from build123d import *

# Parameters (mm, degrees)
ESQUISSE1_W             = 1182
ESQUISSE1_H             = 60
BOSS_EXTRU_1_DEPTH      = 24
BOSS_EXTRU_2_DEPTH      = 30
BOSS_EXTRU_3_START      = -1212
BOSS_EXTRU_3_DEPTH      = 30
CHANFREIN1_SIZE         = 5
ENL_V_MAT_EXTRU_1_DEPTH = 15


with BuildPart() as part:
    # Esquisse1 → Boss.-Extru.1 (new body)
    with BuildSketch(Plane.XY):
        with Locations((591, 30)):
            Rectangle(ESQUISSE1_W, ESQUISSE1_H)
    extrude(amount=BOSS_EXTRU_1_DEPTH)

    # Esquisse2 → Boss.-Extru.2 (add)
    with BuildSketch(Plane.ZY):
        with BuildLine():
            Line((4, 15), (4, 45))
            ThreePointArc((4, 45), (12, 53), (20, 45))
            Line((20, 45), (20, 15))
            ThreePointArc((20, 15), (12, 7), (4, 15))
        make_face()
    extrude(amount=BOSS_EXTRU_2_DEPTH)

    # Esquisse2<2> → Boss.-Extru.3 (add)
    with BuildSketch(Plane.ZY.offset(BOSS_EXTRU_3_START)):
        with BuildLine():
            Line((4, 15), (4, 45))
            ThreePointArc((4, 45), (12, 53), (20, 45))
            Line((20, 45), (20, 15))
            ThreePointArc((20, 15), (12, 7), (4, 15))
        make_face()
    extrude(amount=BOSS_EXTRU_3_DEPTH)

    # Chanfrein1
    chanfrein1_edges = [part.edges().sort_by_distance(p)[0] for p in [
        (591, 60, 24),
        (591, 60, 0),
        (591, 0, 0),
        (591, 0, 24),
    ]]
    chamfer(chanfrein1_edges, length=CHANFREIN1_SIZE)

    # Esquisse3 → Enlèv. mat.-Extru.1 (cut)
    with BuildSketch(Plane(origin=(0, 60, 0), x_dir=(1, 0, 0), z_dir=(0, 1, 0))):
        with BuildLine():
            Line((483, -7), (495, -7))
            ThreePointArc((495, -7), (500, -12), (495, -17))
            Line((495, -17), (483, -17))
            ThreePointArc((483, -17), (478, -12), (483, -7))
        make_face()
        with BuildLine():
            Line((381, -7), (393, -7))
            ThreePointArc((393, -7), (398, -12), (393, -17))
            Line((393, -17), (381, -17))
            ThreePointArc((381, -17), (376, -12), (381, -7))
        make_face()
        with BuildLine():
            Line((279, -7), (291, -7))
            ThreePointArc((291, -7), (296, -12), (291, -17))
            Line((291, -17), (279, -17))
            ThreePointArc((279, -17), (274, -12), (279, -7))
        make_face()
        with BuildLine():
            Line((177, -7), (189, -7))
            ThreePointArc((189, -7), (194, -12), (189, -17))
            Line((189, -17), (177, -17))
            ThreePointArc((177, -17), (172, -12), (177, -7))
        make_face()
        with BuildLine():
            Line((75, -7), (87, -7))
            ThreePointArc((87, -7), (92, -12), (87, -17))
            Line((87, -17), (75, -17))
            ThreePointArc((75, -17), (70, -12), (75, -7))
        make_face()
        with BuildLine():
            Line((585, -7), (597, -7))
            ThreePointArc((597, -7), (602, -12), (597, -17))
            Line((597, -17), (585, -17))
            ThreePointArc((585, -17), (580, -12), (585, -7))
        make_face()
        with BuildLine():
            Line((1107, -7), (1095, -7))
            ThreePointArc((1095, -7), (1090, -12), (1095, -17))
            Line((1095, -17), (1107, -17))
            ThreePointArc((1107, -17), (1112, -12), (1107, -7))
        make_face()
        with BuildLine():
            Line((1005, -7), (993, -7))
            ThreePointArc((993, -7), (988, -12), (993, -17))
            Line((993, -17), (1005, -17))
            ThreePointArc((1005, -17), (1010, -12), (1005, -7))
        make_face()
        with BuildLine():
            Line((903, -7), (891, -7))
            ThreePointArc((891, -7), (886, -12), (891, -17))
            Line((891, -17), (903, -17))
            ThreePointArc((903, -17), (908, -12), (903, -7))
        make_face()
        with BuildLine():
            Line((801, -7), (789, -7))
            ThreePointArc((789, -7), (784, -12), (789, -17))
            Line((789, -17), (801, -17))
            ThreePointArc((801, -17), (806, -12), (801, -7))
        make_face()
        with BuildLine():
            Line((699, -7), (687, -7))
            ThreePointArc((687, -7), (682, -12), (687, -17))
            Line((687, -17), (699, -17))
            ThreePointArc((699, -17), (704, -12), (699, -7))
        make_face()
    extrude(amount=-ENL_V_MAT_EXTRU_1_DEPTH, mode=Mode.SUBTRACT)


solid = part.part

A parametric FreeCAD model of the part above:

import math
import FreeCAD as App
import Part
import Sketcher


def edges_at(feature, points):
    """Names of the edges that pass closest to the given points."""
    edges = feature.Shape.Edges
    near = lambda p: min(range(len(edges)), key=lambda i: edges[i].distToShape(Part.Vertex(*p))[0])
    return sorted({f"Edge{near(p) + 1}" for p in points})

doc = App.newDocument("Part")
body = doc.addObject("PartDesign::Body", "Body")

sketch1 = body.newObject("Sketcher::SketchObject", "Sketch")
sketch1.AttachmentSupport = (doc.getObject("XY_Plane"), [""])
sketch1.MapMode = "FlatFace"
sketch1.addGeometry(Part.LineSegment(App.Vector(0, 60, 0), App.Vector(0, 0, 0)), False)
sketch1.addGeometry(Part.LineSegment(App.Vector(0, 0, 0), App.Vector(1182, 0, 0)), False)
sketch1.addGeometry(Part.LineSegment(App.Vector(1182, 0, 0), App.Vector(1182, 60, 0)), False)
sketch1.addGeometry(Part.LineSegment(App.Vector(1182, 60, 0), App.Vector(0, 60, 0)), False)
sketch1.addConstraint(Sketcher.Constraint("Coincident", 0, 2, 1, 1))
sketch1.addConstraint(Sketcher.Constraint("Coincident", 1, 2, 2, 1))
sketch1.addConstraint(Sketcher.Constraint("Coincident", 2, 2, 3, 1))
sketch1.addConstraint(Sketcher.Constraint("Coincident", 3, 2, 0, 1))
sketch1.addConstraint(Sketcher.Constraint("Vertical", 0))
sketch1.addConstraint(Sketcher.Constraint("Horizontal", 1))
sketch1.addConstraint(Sketcher.Constraint("Vertical", 2))
sketch1.addConstraint(Sketcher.Constraint("Horizontal", 3))
sketch1.addConstraint(Sketcher.Constraint("Coincident", 0, 2, -1, 1))
sketch1.addConstraint(Sketcher.Constraint("DistanceX", 1, 1, 1, 2, 1182.0))
sketch1.addConstraint(Sketcher.Constraint("DistanceY", 0, 2, 0, 1, 60.0))
pad1 = body.newObject("PartDesign::Pad", "Pad")
pad1.Profile = sketch1
pad1.Length = 24

sketch2 = body.newObject("Sketcher::SketchObject", "Sketch001")
sketch2.AttachmentSupport = (doc.getObject("YZ_Plane"), [""])
sketch2.MapMode = "FlatFace"
sketch2.addGeometry(Part.LineSegment(App.Vector(45, 4, 0), App.Vector(15, 4, 0)), False)
sketch2.addGeometry(Part.ArcOfCircle(Part.Circle(App.Vector(15, 12, 0), App.Vector(0, 0, 1), 8), math.radians(90), math.radians(270)), False)
sketch2.addGeometry(Part.LineSegment(App.Vector(15, 20, 0), App.Vector(45, 20, 0)), False)
sketch2.addGeometry(Part.ArcOfCircle(Part.Circle(App.Vector(45, 12, 0), App.Vector(0, 0, 1), 8), math.radians(-90), math.radians(90)), False)
sketch2.addConstraint(Sketcher.Constraint("Tangent", 0, 2, 1, 2))
sketch2.addConstraint(Sketcher.Constraint("Tangent", 1, 1, 2, 1))
sketch2.addConstraint(Sketcher.Constraint("Tangent", 2, 2, 3, 2))
sketch2.addConstraint(Sketcher.Constraint("Tangent", 3, 1, 0, 1))
sketch2.addConstraint(Sketcher.Constraint("Horizontal", 0))
sketch2.addConstraint(Sketcher.Constraint("Horizontal", 2))
sketch2.addConstraint(Sketcher.Constraint("Radius", 1, 8.0))
sketch2.addConstraint(Sketcher.Constraint("DistanceX", 0, 2, 0, 1, 30.0))
sketch2.addConstraint(Sketcher.Constraint("DistanceX", -1, 1, 1, 3, 15.0))
sketch2.addConstraint(Sketcher.Constraint("DistanceY", -1, 1, 1, 3, 12.0))
pad2 = body.newObject("PartDesign::Pad", "Pad001")
pad2.Profile = sketch2
pad2.Length = 30
pad2.Reversed = True

sketch3 = body.newObject("Sketcher::SketchObject", "Sketch002")
sketch3.AttachmentSupport = (doc.getObject("YZ_Plane"), [""])
sketch3.MapMode = "FlatFace"
sketch3.AttachmentOffset = App.Placement(App.Vector(0, 0, 1212), App.Rotation())
sketch3.addGeometry(Part.LineSegment(App.Vector(45, 4, 0), App.Vector(15, 4, 0)), False)
sketch3.addGeometry(Part.ArcOfCircle(Part.Circle(App.Vector(15, 12, 0), App.Vector(0, 0, 1), 8), math.radians(90), math.radians(270)), False)
sketch3.addGeometry(Part.LineSegment(App.Vector(15, 20, 0), App.Vector(45, 20, 0)), False)
sketch3.addGeometry(Part.ArcOfCircle(Part.Circle(App.Vector(45, 12, 0), App.Vector(0, 0, 1), 8), math.radians(-90), math.radians(90)), False)
sketch3.addConstraint(Sketcher.Constraint("Tangent", 0, 2, 1, 2))
sketch3.addConstraint(Sketcher.Constraint("Tangent", 1, 1, 2, 1))
sketch3.addConstraint(Sketcher.Constraint("Tangent", 2, 2, 3, 2))
sketch3.addConstraint(Sketcher.Constraint("Tangent", 3, 1, 0, 1))
sketch3.addConstraint(Sketcher.Constraint("Horizontal", 0))
sketch3.addConstraint(Sketcher.Constraint("Horizontal", 2))
sketch3.addConstraint(Sketcher.Constraint("Radius", 1, 8.0))
sketch3.addConstraint(Sketcher.Constraint("DistanceX", 0, 2, 0, 1, 30.0))
sketch3.addConstraint(Sketcher.Constraint("DistanceX", -1, 1, 1, 3, 15.0))
sketch3.addConstraint(Sketcher.Constraint("DistanceY", -1, 1, 1, 3, 12.0))
pad3 = body.newObject("PartDesign::Pad", "Pad002")
pad3.Profile = sketch3
pad3.Length = 30
pad3.Reversed = True
doc.recompute()

chamfer = body.newObject("PartDesign::Chamfer", "Chamfer")
chamfer.Base = (pad3, edges_at(pad3, [
    (591, 60, 24),
    (591, 60, 0),
    (591, 0, 0),
    (591, 0, 24),
]))
chamfer.Size = 5

sketch4 = body.newObject("Sketcher::SketchObject", "Sketch003")
sketch4.AttachmentSupport = (doc.getObject("XZ_Plane"), [""])
sketch4.MapMode = "FlatFace"
sketch4.AttachmentOffset = App.Placement(App.Vector(0, 0, -60), App.Rotation())
sketch4.addGeometry(Part.LineSegment(App.Vector(495, 7, 0), App.Vector(483, 7, 0)), False)
sketch4.addGeometry(Part.ArcOfCircle(Part.Circle(App.Vector(483, 12, 0), App.Vector(0, 0, 1), 5), math.radians(90), math.radians(270)), False)
sketch4.addGeometry(Part.LineSegment(App.Vector(483, 17, 0), App.Vector(495, 17, 0)), False)
sketch4.addGeometry(Part.ArcOfCircle(Part.Circle(App.Vector(495, 12, 0), App.Vector(0, 0, 1), 5), math.radians(-90), math.radians(90)), False)
sketch4.addGeometry(Part.LineSegment(App.Vector(393, 7, 0), App.Vector(381, 7, 0)), False)
sketch4.addGeometry(Part.ArcOfCircle(Part.Circle(App.Vector(381, 12, 0), App.Vector(0, 0, 1), 5), math.radians(90), math.radians(270)), False)
sketch4.addGeometry(Part.LineSegment(App.Vector(381, 17, 0), App.Vector(393, 17, 0)), False)
sketch4.addGeometry(Part.ArcOfCircle(Part.Circle(App.Vector(393, 12, 0), App.Vector(0, 0, 1), 5), math.radians(-90), math.radians(90)), False)
sketch4.addGeometry(Part.LineSegment(App.Vector(291, 7, 0), App.Vector(279, 7, 0)), False)
sketch4.addGeometry(Part.ArcOfCircle(Part.Circle(App.Vector(279, 12, 0), App.Vector(0, 0, 1), 5), math.radians(90), math.radians(270)), False)
sketch4.addGeometry(Part.LineSegment(App.Vector(279, 17, 0), App.Vector(291, 17, 0)), False)
sketch4.addGeometry(Part.ArcOfCircle(Part.Circle(App.Vector(291, 12, 0), App.Vector(0, 0, 1), 5), math.radians(-90), math.radians(90)), False)
sketch4.addGeometry(Part.LineSegment(App.Vector(189, 7, 0), App.Vector(177, 7, 0)), False)
sketch4.addGeometry(Part.ArcOfCircle(Part.Circle(App.Vector(177, 12, 0), App.Vector(0, 0, 1), 5), math.radians(90), math.radians(270)), False)
sketch4.addGeometry(Part.LineSegment(App.Vector(177, 17, 0), App.Vector(189, 17, 0)), False)
sketch4.addGeometry(Part.ArcOfCircle(Part.Circle(App.Vector(189, 12, 0), App.Vector(0, 0, 1), 5), math.radians(-90), math.radians(90)), False)
sketch4.addGeometry(Part.LineSegment(App.Vector(87, 7, 0), App.Vector(75, 7, 0)), False)
sketch4.addGeometry(Part.ArcOfCircle(Part.Circle(App.Vector(75, 12, 0), App.Vector(0, 0, 1), 5), math.radians(90), math.radians(270)), False)
sketch4.addGeometry(Part.LineSegment(App.Vector(75, 17, 0), App.Vector(87, 17, 0)), False)
sketch4.addGeometry(Part.ArcOfCircle(Part.Circle(App.Vector(87, 12, 0), App.Vector(0, 0, 1), 5), math.radians(-90), math.radians(90)), False)
sketch4.addGeometry(Part.LineSegment(App.Vector(597, 7, 0), App.Vector(585, 7, 0)), False)
sketch4.addGeometry(Part.ArcOfCircle(Part.Circle(App.Vector(585, 12, 0), App.Vector(0, 0, 1), 5), math.radians(90), math.radians(270)), False)
sketch4.addGeometry(Part.LineSegment(App.Vector(585, 17, 0), App.Vector(597, 17, 0)), False)
sketch4.addGeometry(Part.ArcOfCircle(Part.Circle(App.Vector(597, 12, 0), App.Vector(0, 0, 1), 5), math.radians(-90), math.radians(90)), False)
sketch4.addGeometry(Part.LineSegment(App.Vector(1107, 7, 0), App.Vector(1095, 7, 0)), False)
sketch4.addGeometry(Part.ArcOfCircle(Part.Circle(App.Vector(1095, 12, 0), App.Vector(0, 0, 1), 5), math.radians(90), math.radians(270)), False)
sketch4.addGeometry(Part.LineSegment(App.Vector(1095, 17, 0), App.Vector(1107, 17, 0)), False)
sketch4.addGeometry(Part.ArcOfCircle(Part.Circle(App.Vector(1107, 12, 0), App.Vector(0, 0, 1), 5), math.radians(-90), math.radians(90)), False)
sketch4.addGeometry(Part.LineSegment(App.Vector(1005, 7, 0), App.Vector(993, 7, 0)), False)
sketch4.addGeometry(Part.ArcOfCircle(Part.Circle(App.Vector(993, 12, 0), App.Vector(0, 0, 1), 5), math.radians(90), math.radians(270)), False)
sketch4.addGeometry(Part.LineSegment(App.Vector(993, 17, 0), App.Vector(1005, 17, 0)), False)
sketch4.addGeometry(Part.ArcOfCircle(Part.Circle(App.Vector(1005, 12, 0), App.Vector(0, 0, 1), 5), math.radians(-90), math.radians(90)), False)
sketch4.addGeometry(Part.LineSegment(App.Vector(903, 7, 0), App.Vector(891, 7, 0)), False)
sketch4.addGeometry(Part.ArcOfCircle(Part.Circle(App.Vector(891, 12, 0), App.Vector(0, 0, 1), 5), math.radians(90), math.radians(270)), False)
sketch4.addGeometry(Part.LineSegment(App.Vector(891, 17, 0), App.Vector(903, 17, 0)), False)
sketch4.addGeometry(Part.ArcOfCircle(Part.Circle(App.Vector(903, 12, 0), App.Vector(0, 0, 1), 5), math.radians(-90), math.radians(90)), False)
sketch4.addGeometry(Part.LineSegment(App.Vector(801, 7, 0), App.Vector(789, 7, 0)), False)
sketch4.addGeometry(Part.ArcOfCircle(Part.Circle(App.Vector(789, 12, 0), App.Vector(0, 0, 1), 5), math.radians(90), math.radians(270)), False)
sketch4.addGeometry(Part.LineSegment(App.Vector(789, 17, 0), App.Vector(801, 17, 0)), False)
sketch4.addGeometry(Part.ArcOfCircle(Part.Circle(App.Vector(801, 12, 0), App.Vector(0, 0, 1), 5), math.radians(-90), math.radians(90)), False)
sketch4.addGeometry(Part.LineSegment(App.Vector(699, 7, 0), App.Vector(687, 7, 0)), False)
sketch4.addGeometry(Part.ArcOfCircle(Part.Circle(App.Vector(687, 12, 0), App.Vector(0, 0, 1), 5), math.radians(90), math.radians(270)), False)
sketch4.addGeometry(Part.LineSegment(App.Vector(687, 17, 0), App.Vector(699, 17, 0)), False)
sketch4.addGeometry(Part.ArcOfCircle(Part.Circle(App.Vector(699, 12, 0), App.Vector(0, 0, 1), 5), math.radians(-90), math.radians(90)), False)
sketch4.addConstraint(Sketcher.Constraint("Tangent", 0, 2, 1, 2))
sketch4.addConstraint(Sketcher.Constraint("Tangent", 1, 1, 2, 1))
sketch4.addConstraint(Sketcher.Constraint("Tangent", 2, 2, 3, 2))
sketch4.addConstraint(Sketcher.Constraint("Tangent", 3, 1, 0, 1))
sketch4.addConstraint(Sketcher.Constraint("Tangent", 4, 2, 5, 2))
sketch4.addConstraint(Sketcher.Constraint("Tangent", 5, 1, 6, 1))
sketch4.addConstraint(Sketcher.Constraint("Tangent", 6, 2, 7, 2))
sketch4.addConstraint(Sketcher.Constraint("Tangent", 7, 1, 4, 1))
sketch4.addConstraint(Sketcher.Constraint("Tangent", 8, 2, 9, 2))
sketch4.addConstraint(Sketcher.Constraint("Tangent", 9, 1, 10, 1))
sketch4.addConstraint(Sketcher.Constraint("Tangent", 10, 2, 11, 2))
sketch4.addConstraint(Sketcher.Constraint("Tangent", 11, 1, 8, 1))
sketch4.addConstraint(Sketcher.Constraint("Tangent", 12, 2, 13, 2))
sketch4.addConstraint(Sketcher.Constraint("Tangent", 13, 1, 14, 1))
sketch4.addConstraint(Sketcher.Constraint("Tangent", 14, 2, 15, 2))
sketch4.addConstraint(Sketcher.Constraint("Tangent", 15, 1, 12, 1))
sketch4.addConstraint(Sketcher.Constraint("Tangent", 16, 2, 17, 2))
sketch4.addConstraint(Sketcher.Constraint("Tangent", 17, 1, 18, 1))
sketch4.addConstraint(Sketcher.Constraint("Tangent", 18, 2, 19, 2))
sketch4.addConstraint(Sketcher.Constraint("Tangent", 19, 1, 16, 1))
sketch4.addConstraint(Sketcher.Constraint("Tangent", 20, 2, 21, 2))
sketch4.addConstraint(Sketcher.Constraint("Tangent", 21, 1, 22, 1))
sketch4.addConstraint(Sketcher.Constraint("Tangent", 22, 2, 23, 2))
sketch4.addConstraint(Sketcher.Constraint("Tangent", 23, 1, 20, 1))
sketch4.addConstraint(Sketcher.Constraint("Tangent", 24, 2, 25, 2))
sketch4.addConstraint(Sketcher.Constraint("Tangent", 25, 1, 26, 1))
sketch4.addConstraint(Sketcher.Constraint("Tangent", 26, 2, 27, 2))
sketch4.addConstraint(Sketcher.Constraint("Tangent", 27, 1, 24, 1))
sketch4.addConstraint(Sketcher.Constraint("Tangent", 28, 2, 29, 2))
sketch4.addConstraint(Sketcher.Constraint("Tangent", 29, 1, 30, 1))
sketch4.addConstraint(Sketcher.Constraint("Tangent", 30, 2, 31, 2))
sketch4.addConstraint(Sketcher.Constraint("Tangent", 31, 1, 28, 1))
sketch4.addConstraint(Sketcher.Constraint("Tangent", 32, 2, 33, 2))
sketch4.addConstraint(Sketcher.Constraint("Tangent", 33, 1, 34, 1))
sketch4.addConstraint(Sketcher.Constraint("Tangent", 34, 2, 35, 2))
sketch4.addConstraint(Sketcher.Constraint("Tangent", 35, 1, 32, 1))
sketch4.addConstraint(Sketcher.Constraint("Tangent", 36, 2, 37, 2))
sketch4.addConstraint(Sketcher.Constraint("Tangent", 37, 1, 38, 1))
sketch4.addConstraint(Sketcher.Constraint("Tangent", 38, 2, 39, 2))
sketch4.addConstraint(Sketcher.Constraint("Tangent", 39, 1, 36, 1))
sketch4.addConstraint(Sketcher.Constraint("Tangent", 40, 2, 41, 2))
sketch4.addConstraint(Sketcher.Constraint("Tangent", 41, 1, 42, 1))
sketch4.addConstraint(Sketcher.Constraint("Tangent", 42, 2, 43, 2))
sketch4.addConstraint(Sketcher.Constraint("Tangent", 43, 1, 40, 1))
sketch4.addConstraint(Sketcher.Constraint("Horizontal", 0))
sketch4.addConstraint(Sketcher.Constraint("Horizontal", 2))
sketch4.addConstraint(Sketcher.Constraint("Horizontal", 4))
sketch4.addConstraint(Sketcher.Constraint("Horizontal", 6))
sketch4.addConstraint(Sketcher.Constraint("Horizontal", 8))
sketch4.addConstraint(Sketcher.Constraint("Horizontal", 10))
sketch4.addConstraint(Sketcher.Constraint("Horizontal", 12))
sketch4.addConstraint(Sketcher.Constraint("Horizontal", 14))
sketch4.addConstraint(Sketcher.Constraint("Horizontal", 16))
sketch4.addConstraint(Sketcher.Constraint("Horizontal", 18))
sketch4.addConstraint(Sketcher.Constraint("Horizontal", 20))
sketch4.addConstraint(Sketcher.Constraint("Horizontal", 22))
sketch4.addConstraint(Sketcher.Constraint("Horizontal", 24))
sketch4.addConstraint(Sketcher.Constraint("Horizontal", 26))
sketch4.addConstraint(Sketcher.Constraint("Horizontal", 28))
sketch4.addConstraint(Sketcher.Constraint("Horizontal", 30))
sketch4.addConstraint(Sketcher.Constraint("Horizontal", 32))
sketch4.addConstraint(Sketcher.Constraint("Horizontal", 34))
sketch4.addConstraint(Sketcher.Constraint("Horizontal", 36))
sketch4.addConstraint(Sketcher.Constraint("Horizontal", 38))
sketch4.addConstraint(Sketcher.Constraint("Horizontal", 40))
sketch4.addConstraint(Sketcher.Constraint("Horizontal", 42))
sketch4.addConstraint(Sketcher.Constraint("Equal", 3, 5))
sketch4.addConstraint(Sketcher.Constraint("Equal", 7, 9))
sketch4.addConstraint(Sketcher.Constraint("Equal", 11, 13))
sketch4.addConstraint(Sketcher.Constraint("Equal", 15, 17))
sketch4.addConstraint(Sketcher.Constraint("Equal", 19, 21))
sketch4.addConstraint(Sketcher.Constraint("Equal", 23, 25))
sketch4.addConstraint(Sketcher.Constraint("Equal", 27, 29))
sketch4.addConstraint(Sketcher.Constraint("Equal", 31, 33))
sketch4.addConstraint(Sketcher.Constraint("Equal", 35, 37))
sketch4.addConstraint(Sketcher.Constraint("Equal", 39, 41))
sketch4.addConstraint(Sketcher.Constraint("Horizontal", 3, 3, 5, 3))
sketch4.addConstraint(Sketcher.Constraint("Horizontal", 7, 3, 9, 3))
sketch4.addConstraint(Sketcher.Constraint("Horizontal", 11, 3, 13, 3))
sketch4.addConstraint(Sketcher.Constraint("Horizontal", 15, 3, 17, 3))
sketch4.addConstraint(Sketcher.Constraint("Horizontal", 19, 3, 21, 3))
sketch4.addConstraint(Sketcher.Constraint("Horizontal", 23, 3, 25, 3))
sketch4.addConstraint(Sketcher.Constraint("Horizontal", 27, 3, 29, 3))
sketch4.addConstraint(Sketcher.Constraint("Horizontal", 31, 3, 33, 3))
sketch4.addConstraint(Sketcher.Constraint("Horizontal", 35, 3, 37, 3))
sketch4.addConstraint(Sketcher.Constraint("Horizontal", 39, 3, 41, 3))
sketch4.addConstraint(Sketcher.Constraint("Equal", 2, 4))
sketch4.addConstraint(Sketcher.Constraint("Equal", 6, 8))
sketch4.addConstraint(Sketcher.Constraint("Equal", 10, 12))
sketch4.addConstraint(Sketcher.Constraint("Equal", 14, 16))
sketch4.addConstraint(Sketcher.Constraint("Equal", 18, 20))
sketch4.addConstraint(Sketcher.Constraint("Equal", 22, 24))
sketch4.addConstraint(Sketcher.Constraint("Equal", 26, 28))
sketch4.addConstraint(Sketcher.Constraint("Equal", 30, 32))
sketch4.addConstraint(Sketcher.Constraint("Equal", 34, 36))
sketch4.addConstraint(Sketcher.Constraint("Equal", 38, 40))
sketch4.addConstraint(Sketcher.Constraint("Radius", 1, 5.0))
sketch4.addConstraint(Sketcher.Constraint("DistanceX", 0, 2, 0, 1, 12.0))
sketch4.addConstraint(Sketcher.Constraint("DistanceX", -1, 1, 1, 3, 483.0))
sketch4.addConstraint(Sketcher.Constraint("DistanceY", -1, 1, 1, 3, 12.0))
sketch4.addConstraint(Sketcher.Constraint("DistanceX", -1, 1, 5, 3, 381.0))
sketch4.addConstraint(Sketcher.Constraint("DistanceX", -1, 1, 9, 3, 279.0))
sketch4.addConstraint(Sketcher.Constraint("DistanceX", -1, 1, 13, 3, 177.0))
sketch4.addConstraint(Sketcher.Constraint("DistanceX", -1, 1, 17, 3, 75.0))
sketch4.addConstraint(Sketcher.Constraint("DistanceX", -1, 1, 21, 3, 585.0))
sketch4.addConstraint(Sketcher.Constraint("DistanceX", -1, 1, 25, 3, 1095.0))
sketch4.addConstraint(Sketcher.Constraint("DistanceX", -1, 1, 29, 3, 993.0))
sketch4.addConstraint(Sketcher.Constraint("DistanceX", -1, 1, 33, 3, 891.0))
sketch4.addConstraint(Sketcher.Constraint("DistanceX", -1, 1, 37, 3, 789.0))
sketch4.addConstraint(Sketcher.Constraint("DistanceX", -1, 1, 41, 3, 687.0))
pocket1 = body.newObject("PartDesign::Pocket", "Pocket")
pocket1.Profile = sketch4
pocket1.Length = 15
pocket1.Reversed = True

doc.recompute()
